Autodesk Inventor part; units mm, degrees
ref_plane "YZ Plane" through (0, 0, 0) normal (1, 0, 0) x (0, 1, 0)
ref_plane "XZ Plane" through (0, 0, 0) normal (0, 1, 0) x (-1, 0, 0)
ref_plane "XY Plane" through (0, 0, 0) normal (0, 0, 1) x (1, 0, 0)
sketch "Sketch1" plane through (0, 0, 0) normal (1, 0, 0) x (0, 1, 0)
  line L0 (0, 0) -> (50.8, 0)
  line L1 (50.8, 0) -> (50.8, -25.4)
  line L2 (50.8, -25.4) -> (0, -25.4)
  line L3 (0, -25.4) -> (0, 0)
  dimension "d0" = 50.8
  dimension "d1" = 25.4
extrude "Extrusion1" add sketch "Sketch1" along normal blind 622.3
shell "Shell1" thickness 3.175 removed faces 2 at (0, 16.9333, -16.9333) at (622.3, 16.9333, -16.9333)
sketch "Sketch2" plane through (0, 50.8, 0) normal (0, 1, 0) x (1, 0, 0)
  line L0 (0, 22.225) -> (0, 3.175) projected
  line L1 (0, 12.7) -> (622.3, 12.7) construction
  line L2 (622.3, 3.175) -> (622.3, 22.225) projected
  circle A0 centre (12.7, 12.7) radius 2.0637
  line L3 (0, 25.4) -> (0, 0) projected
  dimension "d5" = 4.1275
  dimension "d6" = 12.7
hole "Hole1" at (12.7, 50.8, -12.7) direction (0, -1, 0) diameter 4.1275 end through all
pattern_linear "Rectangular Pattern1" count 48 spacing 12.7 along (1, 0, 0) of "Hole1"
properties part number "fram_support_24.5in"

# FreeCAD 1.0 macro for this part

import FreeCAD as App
import Part
import Sketcher

V = App.Vector
Q = App.Units.Quantity


def faces_at(feature, points):
    """Names of the faces that lie closest to the given points."""
    faces = feature.Shape.Faces
    near = lambda p: min(range(len(faces)), key=lambda i: faces[i].distToShape(Part.Vertex(*p))[0])
    return sorted({f"Face{near(p) + 1}" for p in points})

doc = App.newDocument("Part")
body = doc.addObject("PartDesign::Body", "Body")

# Sketch on YZ plane
sketch1 = body.newObject("Sketcher::SketchObject", "Sketch")
sketch1.AttachmentSupport = (doc.getObject("YZ_Plane"), [""])
sketch1.MapMode = "FlatFace"
sketch1.addGeometry([
    Part.LineSegment(V(51, 0, 0), V(0, 0, 0)),
    Part.LineSegment(V(0, 0, 0), V(0, -25, 0)),
    Part.LineSegment(V(0, -25, 0), V(51, -25, 0)),
    Part.LineSegment(V(51, -25, 0), V(51, 0, 0)),
], False)
sketch1.addConstraint([
    Sketcher.Constraint("Coincident", 0, 2, 1, 1),
    Sketcher.Constraint("Coincident", 1, 2, 2, 1),
    Sketcher.Constraint("Coincident", 2, 2, 3, 1),
    Sketcher.Constraint("Coincident", 3, 2, 0, 1),
    Sketcher.Constraint("Horizontal", 0),
    Sketcher.Constraint("Vertical", 1),
    Sketcher.Constraint("Horizontal", 2),
    Sketcher.Constraint("Vertical", 3),
    Sketcher.Constraint("Coincident", 0, 2, -1, 1),
    Sketcher.Constraint("DistanceX", 0, 2, 0, 1, Q("2 in")),
    Sketcher.Constraint("DistanceY", 1, 2, 1, 1, Q("1 in")),
])
pad1 = body.newObject("PartDesign::Pad", "Pad")
pad1.Profile = sketch1
pad1.Length = Q("24.5 in")
doc.recompute()

thickness = body.newObject("PartDesign::Thickness", "Thickness")
thickness.Base = (pad1, faces_at(pad1, [(0, 16.933, -16.933), (622.3, 16.933, -16.933)]))
thickness.Value = Q("0.125 in")
thickness.Reversed = True
thickness.Join = "Intersection"

# Sketch on XZ plane
sketch2 = body.newObject("Sketcher::SketchObject", "Sketch001")
sketch2.AttachmentSupport = (doc.getObject("XZ_Plane"), [""])
sketch2.MapMode = "FlatFace"
sketch2.AttachmentOffset = App.Placement(V(0, 0, -2 * 25.4), App.Rotation())
sketch2.addGeometry(Part.Circle(V(12.7, -12.7, 0), V(0, 0, 1), 2.1), False)
sketch2.addConstraint([
    Sketcher.Constraint("Diameter", 0, Q("0.1625 in")),
    Sketcher.Constraint("DistanceX", -1, 1, 0, 3, Q("0.5 in")),
    Sketcher.Constraint("DistanceY", 0, 3, -1, 1, Q("0.5 in")),
])
doc.recompute()
hole = body.newObject("PartDesign::Hole", "Hole")
hole.Profile = sketch2
hole.ThreadType = "None"
hole.Diameter = Q("0.1625 in")
hole.DepthType = "ThroughAll"
hole.Reversed = True
doc.recompute()

linearpattern = body.newObject("PartDesign::LinearPattern", "LinearPattern")
linearpattern.Originals = [hole]
linearpattern.Direction = (doc.getObject("X_Axis"), [""])
linearpattern.Mode = "offset"
linearpattern.Offset = Q("0.5 in")
linearpattern.Occurrences = 48
body.Tip = linearpattern

doc.recompute()
